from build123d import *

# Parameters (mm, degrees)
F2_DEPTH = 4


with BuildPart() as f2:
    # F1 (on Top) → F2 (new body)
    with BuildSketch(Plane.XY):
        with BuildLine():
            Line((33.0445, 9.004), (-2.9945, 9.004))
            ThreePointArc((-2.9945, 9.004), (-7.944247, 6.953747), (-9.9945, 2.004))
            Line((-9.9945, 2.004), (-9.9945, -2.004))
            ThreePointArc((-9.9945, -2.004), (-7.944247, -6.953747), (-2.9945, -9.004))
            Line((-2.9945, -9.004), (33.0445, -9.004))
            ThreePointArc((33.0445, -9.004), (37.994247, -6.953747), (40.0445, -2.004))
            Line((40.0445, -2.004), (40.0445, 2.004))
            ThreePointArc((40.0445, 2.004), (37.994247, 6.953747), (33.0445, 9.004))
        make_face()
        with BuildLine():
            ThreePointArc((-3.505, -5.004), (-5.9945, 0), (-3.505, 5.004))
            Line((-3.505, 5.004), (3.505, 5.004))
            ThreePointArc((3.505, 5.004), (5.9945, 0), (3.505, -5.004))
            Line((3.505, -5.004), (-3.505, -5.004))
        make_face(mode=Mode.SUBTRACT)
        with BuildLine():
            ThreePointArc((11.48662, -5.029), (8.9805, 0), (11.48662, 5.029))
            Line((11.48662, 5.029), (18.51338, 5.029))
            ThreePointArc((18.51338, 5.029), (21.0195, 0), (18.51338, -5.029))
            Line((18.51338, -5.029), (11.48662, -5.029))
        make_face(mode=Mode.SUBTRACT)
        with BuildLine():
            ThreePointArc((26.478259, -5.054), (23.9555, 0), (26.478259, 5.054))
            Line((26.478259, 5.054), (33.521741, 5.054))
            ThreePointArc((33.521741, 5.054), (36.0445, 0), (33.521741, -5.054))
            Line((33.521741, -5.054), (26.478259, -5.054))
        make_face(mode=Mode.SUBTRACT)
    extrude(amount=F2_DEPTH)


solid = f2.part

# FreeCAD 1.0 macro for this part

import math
import FreeCAD as App
import Part
import Sketcher
from FreeCAD import Vector

doc = App.newDocument("Part")
body = doc.addObject("PartDesign::Body", "Body")

# Sketch on XY plane
sketch1 = doc.addObject("Sketcher::SketchObject", "Sketch")
body.addObject(sketch1)
sketch1.AttachmentSupport = (doc.XY_Plane, [""])
sketch1.MapMode = "FlatFace"
sketch1.addGeometry([
    Part.LineSegment(Vector(33, 9, 0), Vector(-3, 9, 0)),  # 0
    Part.ArcOfCircle(Part.Circle(Vector(-3, 2, 0), Vector(0, 0, 1), 7), math.radians(90), math.radians(180)),  # 1
    Part.LineSegment(Vector(-10, 2, 0), Vector(-10, -2, 0)),  # 2
    Part.ArcOfCircle(Part.Circle(Vector(-3, -2, 0), Vector(0, 0, 1), 7), math.radians(-180), math.radians(-90)),  # 3
    Part.LineSegment(Vector(-3, -9, 0), Vector(33, -9, 0)),  # 4
    Part.ArcOfCircle(Part.Circle(Vector(33, -2, 0), Vector(0, 0, 1), 7), math.radians(-90), math.radians(0)),  # 5
    Part.LineSegment(Vector(40, -2, 0), Vector(40, 2, 0)),  # 6
    Part.ArcOfCircle(Part.Circle(Vector(33, 2, 0), Vector(0, 0, 1), 7), math.radians(0), math.radians(90)),  # 7
    Part.LineSegment(Vector(3.5, -5, 0), Vector(-3.5, -5, 0)),  # 8
    Part.ArcOfCircle(Part.Circle(Vector(0.3, 0, 0), Vector(0, 0, 1), 6.3), math.radians(127), math.radians(233)),  # 9
    Part.LineSegment(Vector(-3.5, 5, 0), Vector(3.5, 5, 0)),  # 10
    Part.ArcOfCircle(Part.Circle(Vector(-0.3, 0, 0), Vector(0, 0, 1), 6.3), math.radians(-53), math.radians(53)),  # 11
    Part.LineSegment(Vector(18.5, -5, 0), Vector(11.5, -5, 0)),  # 12
    Part.ArcOfCircle(Part.Circle(Vector(15.3, 0, 0), Vector(0, 0, 1), 6.3), math.radians(127), math.radians(233)),  # 13
    Part.LineSegment(Vector(11.5, 5, 0), Vector(18.5, 5, 0)),  # 14
    Part.ArcOfCircle(Part.Circle(Vector(14.7, 0, 0), Vector(0, 0, 1), 6.3), math.radians(-53), math.radians(53)),  # 15
    Part.LineSegment(Vector(33.5, -5.1, 0), Vector(26.5, -5.1, 0)),  # 16
    Part.ArcOfCircle(Part.Circle(Vector(30.3, 0, 0), Vector(0, 0, 1), 6.3), math.radians(127), math.radians(233)),  # 17
    Part.LineSegment(Vector(26.5, 5.1, 0), Vector(33.5, 5.1, 0)),  # 18
    Part.ArcOfCircle(Part.Circle(Vector(29.7, 0, 0), Vector(0, 0, 1), 6.3), math.radians(-53), math.radians(53)),  # 19
], False)
sketch1.addConstraint([
    Sketcher.Constraint("Tangent", 0, 2, 1, 1),
    Sketcher.Constraint("Tangent", 1, 2, 2, 1),
    Sketcher.Constraint("Tangent", 2, 2, 3, 1),
    Sketcher.Constraint("Tangent", 3, 2, 4, 1),
    Sketcher.Constraint("Tangent", 4, 2, 5, 1),
    Sketcher.Constraint("Tangent", 5, 2, 6, 1),
    Sketcher.Constraint("Tangent", 6, 2, 7, 1),
    Sketcher.Constraint("Tangent", 7, 2, 0, 1),
    Sketcher.Constraint("Coincident", 8, 2, 9, 2),
    Sketcher.Constraint("Coincident", 9, 1, 10, 1),
    Sketcher.Constraint("Coincident", 10, 2, 11, 2),
    Sketcher.Constraint("Coincident", 11, 1, 8, 1),
    Sketcher.Constraint("Coincident", 12, 2, 13, 2),
    Sketcher.Constraint("Coincident", 13, 1, 14, 1),
    Sketcher.Constraint("Coincident", 14, 2, 15, 2),
    Sketcher.Constraint("Coincident", 15, 1, 12, 1),
    Sketcher.Constraint("Coincident", 16, 2, 17, 2),
    Sketcher.Constraint("Coincident", 17, 1, 18, 1),
    Sketcher.Constraint("Coincident", 18, 2, 19, 2),
    Sketcher.Constraint("Coincident", 19, 1, 16, 1),
    Sketcher.Constraint("Horizontal", 0),
    Sketcher.Constraint("Vertical", 2),
    Sketcher.Constraint("Horizontal", 4),
    Sketcher.Constraint("Vertical", 6),
    Sketcher.Constraint("Horizontal", 8),
    Sketcher.Constraint("Horizontal", 10),
    Sketcher.Constraint("Horizontal", 12),
    Sketcher.Constraint("Horizontal", 14),
    Sketcher.Constraint("Horizontal", 16),
    Sketcher.Constraint("Horizontal", 18),
    Sketcher.Constraint("Equal", 1, 3),
    Sketcher.Constraint("Equal", 3, 5),
    Sketcher.Constraint("Equal", 5, 7),
    Sketcher.Constraint("Equal", 9, 11),
    Sketcher.Constraint("Equal", 13, 15),
    Sketcher.Constraint("Equal", 17, 19),
    Sketcher.Constraint("Symmetric", 9, 3, 11, 3, -1, 1),
    Sketcher.Constraint("Symmetric", 8, 2, 9, 1, -1),
    Sketcher.Constraint("Symmetric", 12, 2, 13, 1, -1),
    Sketcher.Constraint("Symmetric", 16, 2, 17, 1, -1),
    Sketcher.Constraint("PointOnObject", 15, 3, -1),
    Sketcher.Constraint("PointOnObject", 19, 3, -1),
    Sketcher.Constraint("Radius", 1, 7.000002),
    Sketcher.Constraint("DistanceX", 9, 3, 13, 3, 15.000001),
    Sketcher.Constraint("DistanceX", 11, 3, 15, 3, 14.999999),
    Sketcher.Constraint("DistanceX", 13, 3, 17, 3, 15.0),
    Sketcher.Constraint("DistanceX", 15, 3, 19, 3, 15.0),
    Sketcher.Constraint("DistanceY", 8, 2, 3, 3, 3.000002),
    Sketcher.Constraint("DistanceY", 1, 3, 9, 1, 3.000002),
    Sketcher.Constraint("DistanceX", 8, 2, 8, 1, 7.01),
    Sketcher.Constraint("DistanceX", 0, 2, 0, 1, 36.039),
    Sketcher.Constraint("DistanceY", 2, 2, 2, 1, 4.008),
    Sketcher.Constraint("DistanceY", 16, 2, 5, 3, 3.050002),
    Sketcher.Constraint("DistanceY", 12, 2, -1, 1, 5.029),
    Sketcher.Constraint("Radius", 9, 6.273876),
    Sketcher.Constraint("Radius", 13, 6.298876),
    Sketcher.Constraint("Radius", 17, 6.323876),
    Sketcher.Constraint("DistanceX", 1, 3, -1, 1, 2.994498),
])
pad1 = doc.addObject("PartDesign::Pad", "Pad")
body.addObject(pad1)
pad1.Profile = sketch1
pad1.Length = 4

doc.recompute()
